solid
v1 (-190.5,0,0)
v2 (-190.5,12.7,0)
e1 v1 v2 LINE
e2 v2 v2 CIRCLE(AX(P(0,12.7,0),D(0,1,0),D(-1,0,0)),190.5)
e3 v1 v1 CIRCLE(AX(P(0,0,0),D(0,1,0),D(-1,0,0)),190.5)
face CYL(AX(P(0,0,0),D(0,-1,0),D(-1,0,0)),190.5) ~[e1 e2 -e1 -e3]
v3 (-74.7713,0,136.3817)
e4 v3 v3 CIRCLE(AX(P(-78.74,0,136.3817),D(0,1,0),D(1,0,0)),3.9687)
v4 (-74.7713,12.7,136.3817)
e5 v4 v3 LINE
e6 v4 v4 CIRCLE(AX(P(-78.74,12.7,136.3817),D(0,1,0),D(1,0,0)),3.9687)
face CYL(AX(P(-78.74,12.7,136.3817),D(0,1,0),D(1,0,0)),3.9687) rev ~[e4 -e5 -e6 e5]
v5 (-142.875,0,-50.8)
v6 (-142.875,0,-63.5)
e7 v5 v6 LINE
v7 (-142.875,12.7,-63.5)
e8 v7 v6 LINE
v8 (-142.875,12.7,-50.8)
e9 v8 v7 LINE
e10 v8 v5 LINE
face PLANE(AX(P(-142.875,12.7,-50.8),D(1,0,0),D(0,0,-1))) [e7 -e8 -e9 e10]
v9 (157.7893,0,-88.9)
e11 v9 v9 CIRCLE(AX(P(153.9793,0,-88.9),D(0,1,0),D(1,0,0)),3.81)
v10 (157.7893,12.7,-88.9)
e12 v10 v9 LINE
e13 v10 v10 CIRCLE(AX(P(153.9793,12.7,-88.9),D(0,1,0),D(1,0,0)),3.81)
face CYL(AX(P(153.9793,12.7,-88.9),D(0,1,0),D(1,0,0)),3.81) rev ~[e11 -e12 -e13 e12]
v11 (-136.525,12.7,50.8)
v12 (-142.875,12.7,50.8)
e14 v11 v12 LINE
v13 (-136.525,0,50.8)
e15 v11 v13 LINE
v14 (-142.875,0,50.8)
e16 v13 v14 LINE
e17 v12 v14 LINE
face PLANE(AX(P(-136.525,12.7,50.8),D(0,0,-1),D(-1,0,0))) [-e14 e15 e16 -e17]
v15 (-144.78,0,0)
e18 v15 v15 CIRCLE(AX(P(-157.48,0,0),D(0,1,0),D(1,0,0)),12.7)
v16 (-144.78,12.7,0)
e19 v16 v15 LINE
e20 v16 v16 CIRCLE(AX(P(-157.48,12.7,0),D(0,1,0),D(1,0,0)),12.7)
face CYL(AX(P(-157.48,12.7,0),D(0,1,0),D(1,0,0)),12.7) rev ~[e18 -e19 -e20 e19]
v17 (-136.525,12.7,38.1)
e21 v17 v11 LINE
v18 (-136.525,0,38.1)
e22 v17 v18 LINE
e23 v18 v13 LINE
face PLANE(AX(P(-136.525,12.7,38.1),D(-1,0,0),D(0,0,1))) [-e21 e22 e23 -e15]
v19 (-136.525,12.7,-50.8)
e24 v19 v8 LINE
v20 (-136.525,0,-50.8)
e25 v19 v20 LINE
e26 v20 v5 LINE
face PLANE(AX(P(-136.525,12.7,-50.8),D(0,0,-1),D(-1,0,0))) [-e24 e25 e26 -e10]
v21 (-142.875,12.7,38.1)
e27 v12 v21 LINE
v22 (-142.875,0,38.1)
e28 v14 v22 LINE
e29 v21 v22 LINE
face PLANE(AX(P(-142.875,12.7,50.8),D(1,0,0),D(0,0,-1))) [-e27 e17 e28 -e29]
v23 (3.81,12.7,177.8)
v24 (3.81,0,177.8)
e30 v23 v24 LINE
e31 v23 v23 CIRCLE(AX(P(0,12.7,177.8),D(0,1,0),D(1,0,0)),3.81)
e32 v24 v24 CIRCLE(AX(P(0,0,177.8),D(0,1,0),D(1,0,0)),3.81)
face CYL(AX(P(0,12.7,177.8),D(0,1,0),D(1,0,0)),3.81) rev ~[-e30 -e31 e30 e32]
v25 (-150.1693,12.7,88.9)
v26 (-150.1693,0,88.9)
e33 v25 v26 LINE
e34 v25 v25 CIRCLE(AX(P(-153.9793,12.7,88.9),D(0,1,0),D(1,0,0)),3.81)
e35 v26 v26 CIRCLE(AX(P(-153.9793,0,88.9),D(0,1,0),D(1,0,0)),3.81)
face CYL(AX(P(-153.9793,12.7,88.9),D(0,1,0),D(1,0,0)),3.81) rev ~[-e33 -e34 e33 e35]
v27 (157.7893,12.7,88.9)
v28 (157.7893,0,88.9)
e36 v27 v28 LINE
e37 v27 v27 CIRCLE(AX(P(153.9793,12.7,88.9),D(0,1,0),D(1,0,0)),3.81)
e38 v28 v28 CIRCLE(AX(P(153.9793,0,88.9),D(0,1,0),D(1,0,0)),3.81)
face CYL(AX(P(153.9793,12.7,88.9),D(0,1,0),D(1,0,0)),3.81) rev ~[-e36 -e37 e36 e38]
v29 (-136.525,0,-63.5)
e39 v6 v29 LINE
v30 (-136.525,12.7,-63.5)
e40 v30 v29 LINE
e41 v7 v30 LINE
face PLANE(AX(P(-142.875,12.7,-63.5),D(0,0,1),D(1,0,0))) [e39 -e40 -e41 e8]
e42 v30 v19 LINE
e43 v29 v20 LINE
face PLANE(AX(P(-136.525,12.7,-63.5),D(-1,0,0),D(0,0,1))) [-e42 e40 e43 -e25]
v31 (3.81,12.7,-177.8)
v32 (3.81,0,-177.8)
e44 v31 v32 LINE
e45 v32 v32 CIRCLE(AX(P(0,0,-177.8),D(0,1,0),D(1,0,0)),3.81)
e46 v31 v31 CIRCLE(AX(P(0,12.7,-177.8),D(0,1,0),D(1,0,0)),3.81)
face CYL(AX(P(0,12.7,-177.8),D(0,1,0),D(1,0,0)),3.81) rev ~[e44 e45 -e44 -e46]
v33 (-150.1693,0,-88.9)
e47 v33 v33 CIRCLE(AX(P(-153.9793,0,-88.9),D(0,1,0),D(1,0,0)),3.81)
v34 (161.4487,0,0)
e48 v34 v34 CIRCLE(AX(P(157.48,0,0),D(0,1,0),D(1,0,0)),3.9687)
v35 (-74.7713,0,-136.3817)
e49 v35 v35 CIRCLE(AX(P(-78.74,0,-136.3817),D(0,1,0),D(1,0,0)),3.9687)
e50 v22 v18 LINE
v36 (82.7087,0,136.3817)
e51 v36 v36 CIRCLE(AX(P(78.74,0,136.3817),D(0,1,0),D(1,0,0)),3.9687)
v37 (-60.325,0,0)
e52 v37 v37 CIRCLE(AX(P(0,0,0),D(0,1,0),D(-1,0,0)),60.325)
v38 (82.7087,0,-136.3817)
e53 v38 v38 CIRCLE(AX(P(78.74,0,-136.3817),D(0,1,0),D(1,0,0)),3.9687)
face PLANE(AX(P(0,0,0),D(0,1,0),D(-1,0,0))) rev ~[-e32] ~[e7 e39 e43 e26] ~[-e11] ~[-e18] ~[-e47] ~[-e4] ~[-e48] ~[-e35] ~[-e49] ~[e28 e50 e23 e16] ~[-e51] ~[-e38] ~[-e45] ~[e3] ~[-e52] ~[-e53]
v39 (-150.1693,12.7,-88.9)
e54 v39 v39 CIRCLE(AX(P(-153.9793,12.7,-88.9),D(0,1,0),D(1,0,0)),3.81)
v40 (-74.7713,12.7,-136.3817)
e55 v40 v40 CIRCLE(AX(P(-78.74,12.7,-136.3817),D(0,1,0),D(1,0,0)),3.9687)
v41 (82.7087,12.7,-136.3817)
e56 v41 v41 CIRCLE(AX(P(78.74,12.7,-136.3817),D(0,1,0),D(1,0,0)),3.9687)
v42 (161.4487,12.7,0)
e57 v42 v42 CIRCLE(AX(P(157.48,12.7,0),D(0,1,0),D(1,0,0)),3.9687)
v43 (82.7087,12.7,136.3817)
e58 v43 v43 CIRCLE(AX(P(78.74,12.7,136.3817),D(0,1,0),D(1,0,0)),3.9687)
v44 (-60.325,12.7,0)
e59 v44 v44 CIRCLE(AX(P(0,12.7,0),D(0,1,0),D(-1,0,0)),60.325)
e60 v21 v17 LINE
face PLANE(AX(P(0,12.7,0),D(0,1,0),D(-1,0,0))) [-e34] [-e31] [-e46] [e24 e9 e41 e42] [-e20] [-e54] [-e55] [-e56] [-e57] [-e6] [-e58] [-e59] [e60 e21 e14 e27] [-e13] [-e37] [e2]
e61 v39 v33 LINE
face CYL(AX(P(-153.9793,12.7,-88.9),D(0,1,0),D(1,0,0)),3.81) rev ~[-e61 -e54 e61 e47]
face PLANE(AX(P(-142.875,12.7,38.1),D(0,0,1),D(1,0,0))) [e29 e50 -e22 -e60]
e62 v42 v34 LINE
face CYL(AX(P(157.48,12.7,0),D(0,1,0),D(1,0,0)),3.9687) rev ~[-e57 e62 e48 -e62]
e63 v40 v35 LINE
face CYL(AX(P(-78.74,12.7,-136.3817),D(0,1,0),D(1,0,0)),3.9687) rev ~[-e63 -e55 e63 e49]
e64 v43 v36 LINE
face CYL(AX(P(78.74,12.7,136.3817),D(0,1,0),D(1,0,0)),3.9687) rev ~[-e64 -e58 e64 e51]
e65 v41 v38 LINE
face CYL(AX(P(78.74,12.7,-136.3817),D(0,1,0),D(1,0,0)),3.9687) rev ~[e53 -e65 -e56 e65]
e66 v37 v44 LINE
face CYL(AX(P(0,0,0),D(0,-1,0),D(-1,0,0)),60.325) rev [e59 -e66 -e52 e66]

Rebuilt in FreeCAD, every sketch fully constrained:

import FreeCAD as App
import Part
import Sketcher
from FreeCAD import Vector
Q = App.Units.Quantity


def add_polygon(sketch, points):
    """Adds a closed chain of lines whose ends are joined by coincident constraints."""
    first, n = sketch.GeometryCount, len(points)
    for a, b in zip(points, points[1:] + points[:1]):
        sketch.addGeometry(Part.LineSegment(App.Vector(*a, 0), App.Vector(*b, 0)), False)
    for i in range(n):
        sketch.addConstraint(Sketcher.Constraint("Coincident", first + i, 2, first + (i + 1) % n, 1))

doc = App.newDocument("Part")
body = doc.addObject("PartDesign::Body", "Body")

# Sketch on XZ plane
sketch1 = body.newObject("Sketcher::SketchObject", "Sketch")
sketch1.AttachmentSupport = (doc.getObject("XZ_Plane"), [""])
sketch1.MapMode = "FlatFace"
sketch1.addGeometry(Part.Circle(Vector(0, 0, 0), Vector(0, 0, 1), 190), False)
sketch1.addGeometry(Part.Circle(Vector(0, 0, 0), Vector(0, 0, 1), 60), False)
sketch1.addConstraint(Sketcher.Constraint("Coincident", 0, 3, -1, 1))
sketch1.addConstraint(Sketcher.Constraint("Coincident", 1, 3, -1, 1))
sketch1.addConstraint(Sketcher.Constraint("Diameter", 0, Q("15 in")))
sketch1.addConstraint(Sketcher.Constraint("Diameter", 1, Q("4.75 in")))
pad1 = body.newObject("PartDesign::Pad", "Pad")
pad1.Profile = sketch1
pad1.Length = Q("0.5 in")
pad1.Reversed = True

# Sketch on XZ plane
sketch2 = body.newObject("Sketcher::SketchObject", "Sketch001")
sketch2.AttachmentSupport = (doc.getObject("XZ_Plane"), [""])
sketch2.MapMode = "FlatFace"
sketch2.AttachmentOffset = App.Placement(Vector(0, 0, -0.5 * 25.4), App.Rotation())
add_polygon(sketch2, [(-137, -64), (-143, -64), (-143, -51), (-137, -51)])  # lines 0-3
add_polygon(sketch2, [(-143, 51), (-137, 51), (-137, 38), (-143, 38)])  # lines 4-7
sketch2.addConstraint(Sketcher.Constraint("Horizontal", 0))
sketch2.addConstraint(Sketcher.Constraint("Vertical", 1))
sketch2.addConstraint(Sketcher.Constraint("Horizontal", 2))
sketch2.addConstraint(Sketcher.Constraint("Vertical", 3))
sketch2.addConstraint(Sketcher.Constraint("Horizontal", 4))
sketch2.addConstraint(Sketcher.Constraint("Vertical", 5))
sketch2.addConstraint(Sketcher.Constraint("Horizontal", 6))
sketch2.addConstraint(Sketcher.Constraint("Vertical", 7))
sketch2.addConstraint(Sketcher.Constraint("Symmetric", 2, 2, 4, 2, -1))
sketch2.addConstraint(Sketcher.Constraint("Vertical", 1, 2, 6, 2))
sketch2.addConstraint(Sketcher.Constraint("Equal", 3, 5))
sketch2.addConstraint(Sketcher.Constraint("DistanceY", 1, 1, 1, 2, Q("0.5 in")))
sketch2.addConstraint(Sketcher.Constraint("DistanceY", 2, 2, 4, 2, Q("4 in")))
sketch2.addConstraint(Sketcher.Constraint("DistanceX", 0, 2, 0, 1, Q("0.25 in")))
sketch2.addConstraint(Sketcher.Constraint("DistanceX", 0, 2, -1, 1, Q("5.625 in")))
pocket1 = body.newObject("PartDesign::Pocket", "Pocket")
pocket1.Profile = sketch2
pocket1.Type = "ThroughAll"
pocket1.Reversed = True

# Sketch on XZ plane
sketch3 = body.newObject("Sketcher::SketchObject", "Sketch002")
sketch3.AttachmentSupport = (doc.getObject("XZ_Plane"), [""])
sketch3.MapMode = "FlatFace"
sketch3.AttachmentOffset = App.Placement(Vector(0, 0, -0.5 * 25.4), App.Rotation())
sketch3.addGeometry(Part.Circle(Vector(-157.5, 0, 0), Vector(0, 0, 1), 4), False)
sketch3.addGeometry(Part.Circle(Vector(-78.7, 136.4, 0), Vector(0, 0, 1), 4), False)
sketch3.addGeometry(Part.Circle(Vector(78.7, 136.4, 0), Vector(0, 0, 1), 4), False)
sketch3.addGeometry(Part.Circle(Vector(157.5, 0, 0), Vector(0, 0, 1), 4), False)
sketch3.addGeometry(Part.Circle(Vector(78.7, -136.4, 0), Vector(0, 0, 1), 4), False)
sketch3.addGeometry(Part.Circle(Vector(-78.7, -136.4, 0), Vector(0, 0, 1), 4), False)
sketch3.addConstraint(Sketcher.Constraint("Equal", 0, 1))
sketch3.addConstraint(Sketcher.Constraint("Equal", 1, 2))
sketch3.addConstraint(Sketcher.Constraint("Equal", 2, 3))
sketch3.addConstraint(Sketcher.Constraint("Equal", 3, 4))
sketch3.addConstraint(Sketcher.Constraint("Equal", 4, 5))
sketch3.addConstraint(Sketcher.Constraint("Symmetric", 0, 3, 3, 3, -1, 1))
sketch3.addConstraint(Sketcher.Constraint("Symmetric", 1, 3, 4, 3, -1, 1))
sketch3.addConstraint(Sketcher.Constraint("Symmetric", 2, 3, 5, 3, -1, 1))
sketch3.addConstraint(Sketcher.Constraint("Symmetric", 1, 3, 2, 3, -2))
sketch3.addConstraint(Sketcher.Constraint("PointOnObject", 0, 3, -1))
sketch3.addConstraint(Sketcher.Constraint("Diameter", 0, Q("0.3125 in")))
sketch3.addConstraint(Sketcher.Constraint("DistanceX", 0, 3, 3, 3, Q("12.4 in")))
sketch3.addConstraint(Sketcher.Constraint("DistanceX", 1, 3, -1, 1, Q("3.1 in")))
sketch3.addConstraint(Sketcher.Constraint("DistanceY", -1, 1, 1, 3, Q("136.3817 mm")))
pocket2 = body.newObject("PartDesign::Pocket", "Pocket001")
pocket2.Profile = sketch3
pocket2.Type = "ThroughAll"
pocket2.Reversed = True

# Sketch on XZ plane
sketch4 = body.newObject("Sketcher::SketchObject", "Sketch003")
sketch4.AttachmentSupport = (doc.getObject("XZ_Plane"), [""])
sketch4.MapMode = "FlatFace"
sketch4.AttachmentOffset = App.Placement(Vector(0, 0, -0.5 * 25.4), App.Rotation())
sketch4.addGeometry(Part.Circle(Vector(0, 177.8, 0), Vector(0, 0, 1), 3.8), False)
sketch4.addGeometry(Part.Circle(Vector(154, 88.9, 0), Vector(0, 0, 1), 3.8), False)
sketch4.addGeometry(Part.Circle(Vector(154, -88.9, 0), Vector(0, 0, 1), 3.8), False)
sketch4.addGeometry(Part.Circle(Vector(0, -177.8, 0), Vector(0, 0, 1), 3.8), False)
sketch4.addGeometry(Part.Circle(Vector(-154, -88.9, 0), Vector(0, 0, 1), 3.8), False)
sketch4.addGeometry(Part.Circle(Vector(-154, 88.9, 0), Vector(0, 0, 1), 3.8), False)
sketch4.addConstraint(Sketcher.Constraint("Equal", 0, 1))
sketch4.addConstraint(Sketcher.Constraint("Equal", 1, 2))
sketch4.addConstraint(Sketcher.Constraint("Equal", 2, 3))
sketch4.addConstraint(Sketcher.Constraint("Equal", 3, 4))
sketch4.addConstraint(Sketcher.Constraint("Equal", 4, 5))
sketch4.addConstraint(Sketcher.Constraint("Symmetric", 0, 3, 3, 3, -1, 1))
sketch4.addConstraint(Sketcher.Constraint("Symmetric", 1, 3, 4, 3, -1, 1))
sketch4.addConstraint(Sketcher.Constraint("Symmetric", 2, 3, 5, 3, -1, 1))
sketch4.addConstraint(Sketcher.Constraint("Symmetric", 2, 3, 4, 3, -2))
sketch4.addConstraint(Sketcher.Constraint("PointOnObject", 0, 3, -2))
sketch4.addConstraint(Sketcher.Constraint("Diameter", 0, Q("0.3 in")))
sketch4.addConstraint(Sketcher.Constraint("DistanceY", -1, 1, 0, 3, Q("7 in")))
sketch4.addConstraint(Sketcher.Constraint("DistanceY", 2, 3, 1, 3, Q("7 in")))
sketch4.addConstraint(Sketcher.Constraint("DistanceX", -1, 1, 1, 3, Q("153.9793 mm")))
pocket3 = body.newObject("PartDesign::Pocket", "Pocket002")
pocket3.Profile = sketch4
pocket3.Type = "ThroughAll"
pocket3.Reversed = True

# Sketch on XZ plane
sketch5 = body.newObject("Sketcher::SketchObject", "Sketch004")
sketch5.AttachmentSupport = (doc.getObject("XZ_Plane"), [""])
sketch5.MapMode = "FlatFace"
sketch5.AttachmentOffset = App.Placement(Vector(0, 0, -0.5 * 25.4), App.Rotation())
sketch5.addGeometry(Part.Circle(Vector(-157.5, 0, 0), Vector(0, 0, 1), 12.7), False)
sketch5.addGeometry(Part.Circle(Vector(-157.5, 0, 0), Vector(0, 0, 1), 4), False)
sketch5.addConstraint(Sketcher.Constraint("Coincident", 1, 3, 0, 3))
sketch5.addConstraint(Sketcher.Constraint("PointOnObject", 0, 3, -1))
sketch5.addConstraint(Sketcher.Constraint("Diameter", 0, Q("1 in")))
sketch5.addConstraint(Sketcher.Constraint("Diameter", 1, Q("0.3125 in")))
sketch5.addConstraint(Sketcher.Constraint("DistanceX", 0, 3, -1, 1, Q("6.2 in")))
pocket4 = body.newObject("PartDesign::Pocket", "Pocket003")
pocket4.Profile = sketch5
pocket4.Type = "ThroughAll"
pocket4.Reversed = True

doc.recompute()
